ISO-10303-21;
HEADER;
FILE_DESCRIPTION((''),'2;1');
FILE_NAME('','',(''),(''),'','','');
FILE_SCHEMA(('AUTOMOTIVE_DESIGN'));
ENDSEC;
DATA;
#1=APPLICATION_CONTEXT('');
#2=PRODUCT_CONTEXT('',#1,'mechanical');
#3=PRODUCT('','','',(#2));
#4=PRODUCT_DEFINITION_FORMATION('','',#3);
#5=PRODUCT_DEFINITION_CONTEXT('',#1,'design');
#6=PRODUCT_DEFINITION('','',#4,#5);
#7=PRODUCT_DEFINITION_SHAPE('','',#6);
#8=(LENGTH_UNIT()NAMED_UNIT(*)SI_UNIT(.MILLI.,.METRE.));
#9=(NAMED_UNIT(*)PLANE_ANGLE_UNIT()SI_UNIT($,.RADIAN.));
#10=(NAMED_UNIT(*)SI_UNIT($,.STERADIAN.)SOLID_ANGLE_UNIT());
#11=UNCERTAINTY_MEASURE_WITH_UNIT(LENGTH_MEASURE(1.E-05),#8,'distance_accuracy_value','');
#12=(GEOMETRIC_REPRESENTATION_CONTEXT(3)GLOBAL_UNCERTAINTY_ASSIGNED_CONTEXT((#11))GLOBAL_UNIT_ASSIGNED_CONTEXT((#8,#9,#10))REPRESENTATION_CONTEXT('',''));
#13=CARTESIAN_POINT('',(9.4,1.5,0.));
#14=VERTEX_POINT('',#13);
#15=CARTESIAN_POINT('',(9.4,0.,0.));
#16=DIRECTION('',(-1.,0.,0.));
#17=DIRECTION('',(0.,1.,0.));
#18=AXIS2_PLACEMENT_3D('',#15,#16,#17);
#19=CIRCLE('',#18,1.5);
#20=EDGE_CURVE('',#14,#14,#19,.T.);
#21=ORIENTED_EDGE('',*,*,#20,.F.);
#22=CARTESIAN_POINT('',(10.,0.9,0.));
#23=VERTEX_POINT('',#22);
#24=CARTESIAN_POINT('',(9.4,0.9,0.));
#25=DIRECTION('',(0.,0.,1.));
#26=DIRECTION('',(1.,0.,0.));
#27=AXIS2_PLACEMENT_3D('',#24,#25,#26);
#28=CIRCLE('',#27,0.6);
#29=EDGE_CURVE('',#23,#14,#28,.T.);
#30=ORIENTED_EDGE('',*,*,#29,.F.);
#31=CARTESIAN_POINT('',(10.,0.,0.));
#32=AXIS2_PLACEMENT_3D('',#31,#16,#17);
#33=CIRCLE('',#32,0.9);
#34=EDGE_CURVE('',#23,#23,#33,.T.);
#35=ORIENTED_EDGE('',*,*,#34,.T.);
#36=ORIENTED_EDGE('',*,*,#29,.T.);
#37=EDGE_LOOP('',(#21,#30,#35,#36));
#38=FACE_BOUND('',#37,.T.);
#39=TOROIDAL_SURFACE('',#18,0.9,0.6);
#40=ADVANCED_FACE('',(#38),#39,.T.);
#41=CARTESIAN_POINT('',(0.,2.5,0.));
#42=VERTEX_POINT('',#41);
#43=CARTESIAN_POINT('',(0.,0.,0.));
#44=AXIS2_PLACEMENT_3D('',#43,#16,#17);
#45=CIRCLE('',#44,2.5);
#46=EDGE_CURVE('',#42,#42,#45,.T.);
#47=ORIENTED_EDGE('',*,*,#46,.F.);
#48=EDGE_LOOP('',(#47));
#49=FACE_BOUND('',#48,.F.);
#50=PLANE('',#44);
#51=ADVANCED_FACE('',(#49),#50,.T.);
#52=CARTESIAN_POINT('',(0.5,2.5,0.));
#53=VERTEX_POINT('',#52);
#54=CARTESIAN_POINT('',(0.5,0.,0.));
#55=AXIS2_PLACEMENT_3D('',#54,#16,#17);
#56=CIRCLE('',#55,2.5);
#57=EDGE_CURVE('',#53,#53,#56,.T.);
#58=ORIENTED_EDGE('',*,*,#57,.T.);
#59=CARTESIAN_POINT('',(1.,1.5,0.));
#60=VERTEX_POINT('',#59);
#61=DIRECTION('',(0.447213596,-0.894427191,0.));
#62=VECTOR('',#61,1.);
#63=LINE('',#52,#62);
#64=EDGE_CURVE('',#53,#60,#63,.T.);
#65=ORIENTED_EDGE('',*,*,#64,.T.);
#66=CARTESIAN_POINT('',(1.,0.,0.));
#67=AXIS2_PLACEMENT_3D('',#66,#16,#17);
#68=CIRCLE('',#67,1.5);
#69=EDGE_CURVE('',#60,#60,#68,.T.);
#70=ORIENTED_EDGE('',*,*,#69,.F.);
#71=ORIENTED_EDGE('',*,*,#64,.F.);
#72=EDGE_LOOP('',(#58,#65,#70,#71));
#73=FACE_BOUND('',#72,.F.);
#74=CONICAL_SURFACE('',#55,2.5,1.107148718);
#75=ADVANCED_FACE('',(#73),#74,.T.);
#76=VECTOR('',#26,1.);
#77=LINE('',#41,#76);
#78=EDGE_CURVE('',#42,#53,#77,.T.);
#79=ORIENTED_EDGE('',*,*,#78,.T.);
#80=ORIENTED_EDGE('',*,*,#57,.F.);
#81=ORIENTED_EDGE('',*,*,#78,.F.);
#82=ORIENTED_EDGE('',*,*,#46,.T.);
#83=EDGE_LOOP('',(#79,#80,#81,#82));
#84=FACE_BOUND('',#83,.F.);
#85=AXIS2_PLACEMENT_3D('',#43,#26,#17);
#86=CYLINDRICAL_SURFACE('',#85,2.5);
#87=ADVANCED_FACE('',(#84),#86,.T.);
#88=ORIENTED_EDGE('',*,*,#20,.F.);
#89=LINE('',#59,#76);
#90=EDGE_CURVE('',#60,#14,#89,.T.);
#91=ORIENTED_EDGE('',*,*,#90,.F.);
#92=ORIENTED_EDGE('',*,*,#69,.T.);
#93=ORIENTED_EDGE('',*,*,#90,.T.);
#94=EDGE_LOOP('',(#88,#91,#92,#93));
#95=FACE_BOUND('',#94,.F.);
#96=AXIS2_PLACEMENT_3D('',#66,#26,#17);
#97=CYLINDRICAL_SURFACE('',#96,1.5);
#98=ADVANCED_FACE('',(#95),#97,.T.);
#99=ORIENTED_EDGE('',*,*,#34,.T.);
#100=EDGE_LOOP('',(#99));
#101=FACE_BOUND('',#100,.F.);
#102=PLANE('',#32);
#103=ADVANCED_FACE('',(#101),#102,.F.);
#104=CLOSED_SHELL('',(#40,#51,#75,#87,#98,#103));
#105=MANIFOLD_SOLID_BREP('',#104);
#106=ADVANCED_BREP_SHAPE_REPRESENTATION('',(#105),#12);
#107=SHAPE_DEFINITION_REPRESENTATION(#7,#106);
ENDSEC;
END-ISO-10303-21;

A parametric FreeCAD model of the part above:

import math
import FreeCAD as App
import Part
import Sketcher

V = App.Vector

doc = App.newDocument("Part")
body = doc.addObject("PartDesign::Body", "Body")

# Sketch on XY plane
sketch1 = body.newObject("Sketcher::SketchObject", "Sketch")
sketch1.AttachmentSupport = (doc.getObject("XY_Plane"), [""])
sketch1.MapMode = "FlatFace"
sketch1.addGeometry(Part.LineSegment(V(0, 2.5, 0), V(0, 0, 0)), False)
sketch1.addGeometry(Part.LineSegment(V(0, 0, 0), V(10, 0, 0)), False)
sketch1.addGeometry(Part.LineSegment(V(10, 0, 0), V(10, 0.9, 0)), False)
sketch1.addGeometry(Part.ArcOfCircle(Part.Circle(V(9.4, 0.9, 0), V(0, 0, 1), 0.6), math.radians(0), math.radians(90)), False)
sketch1.addGeometry(Part.LineSegment(V(9.4, 1.5, 0), V(1, 1.5, 0)), False)
sketch1.addGeometry(Part.LineSegment(V(1, 1.5, 0), V(0.5, 2.5, 0)), False)
sketch1.addGeometry(Part.LineSegment(V(0.5, 2.5, 0), V(0, 2.5, 0)), False)
sketch1.addConstraint(Sketcher.Constraint("Coincident", 0, 2, 1, 1))
sketch1.addConstraint(Sketcher.Constraint("Coincident", 1, 2, 2, 1))
sketch1.addConstraint(Sketcher.Constraint("Tangent", 2, 2, 3, 1))
sketch1.addConstraint(Sketcher.Constraint("Tangent", 3, 2, 4, 1))
sketch1.addConstraint(Sketcher.Constraint("Coincident", 4, 2, 5, 1))
sketch1.addConstraint(Sketcher.Constraint("Coincident", 5, 2, 6, 1))
sketch1.addConstraint(Sketcher.Constraint("Coincident", 6, 2, 0, 1))
sketch1.addConstraint(Sketcher.Constraint("Vertical", 0))
sketch1.addConstraint(Sketcher.Constraint("Horizontal", 1))
sketch1.addConstraint(Sketcher.Constraint("Vertical", 2))
sketch1.addConstraint(Sketcher.Constraint("Horizontal", 4))
sketch1.addConstraint(Sketcher.Constraint("Horizontal", 6))
sketch1.addConstraint(Sketcher.Constraint("Coincident", 0, 2, -1, 1))
sketch1.addConstraint(Sketcher.Constraint("Radius", 3, 0.6))
sketch1.addConstraint(Sketcher.Constraint("DistanceX", 1, 1, 1, 2, 10.0))
sketch1.addConstraint(Sketcher.Constraint("DistanceX", 6, 2, 6, 1, 0.5))
sketch1.addConstraint(Sketcher.Constraint("DistanceY", 0, 2, 0, 1, 2.5))
sketch1.addConstraint(Sketcher.Constraint("DistanceX", -1, 1, 4, 2, 1.0))
sketch1.addConstraint(Sketcher.Constraint("DistanceY", 4, 2, 5, 2, 1.0))
revolution = body.newObject("PartDesign::Revolution", "Revolution")
revolution.Profile = sketch1
revolution.ReferenceAxis = (sketch1, ["H_Axis"])
revolution.Angle = 360

doc.recompute()
